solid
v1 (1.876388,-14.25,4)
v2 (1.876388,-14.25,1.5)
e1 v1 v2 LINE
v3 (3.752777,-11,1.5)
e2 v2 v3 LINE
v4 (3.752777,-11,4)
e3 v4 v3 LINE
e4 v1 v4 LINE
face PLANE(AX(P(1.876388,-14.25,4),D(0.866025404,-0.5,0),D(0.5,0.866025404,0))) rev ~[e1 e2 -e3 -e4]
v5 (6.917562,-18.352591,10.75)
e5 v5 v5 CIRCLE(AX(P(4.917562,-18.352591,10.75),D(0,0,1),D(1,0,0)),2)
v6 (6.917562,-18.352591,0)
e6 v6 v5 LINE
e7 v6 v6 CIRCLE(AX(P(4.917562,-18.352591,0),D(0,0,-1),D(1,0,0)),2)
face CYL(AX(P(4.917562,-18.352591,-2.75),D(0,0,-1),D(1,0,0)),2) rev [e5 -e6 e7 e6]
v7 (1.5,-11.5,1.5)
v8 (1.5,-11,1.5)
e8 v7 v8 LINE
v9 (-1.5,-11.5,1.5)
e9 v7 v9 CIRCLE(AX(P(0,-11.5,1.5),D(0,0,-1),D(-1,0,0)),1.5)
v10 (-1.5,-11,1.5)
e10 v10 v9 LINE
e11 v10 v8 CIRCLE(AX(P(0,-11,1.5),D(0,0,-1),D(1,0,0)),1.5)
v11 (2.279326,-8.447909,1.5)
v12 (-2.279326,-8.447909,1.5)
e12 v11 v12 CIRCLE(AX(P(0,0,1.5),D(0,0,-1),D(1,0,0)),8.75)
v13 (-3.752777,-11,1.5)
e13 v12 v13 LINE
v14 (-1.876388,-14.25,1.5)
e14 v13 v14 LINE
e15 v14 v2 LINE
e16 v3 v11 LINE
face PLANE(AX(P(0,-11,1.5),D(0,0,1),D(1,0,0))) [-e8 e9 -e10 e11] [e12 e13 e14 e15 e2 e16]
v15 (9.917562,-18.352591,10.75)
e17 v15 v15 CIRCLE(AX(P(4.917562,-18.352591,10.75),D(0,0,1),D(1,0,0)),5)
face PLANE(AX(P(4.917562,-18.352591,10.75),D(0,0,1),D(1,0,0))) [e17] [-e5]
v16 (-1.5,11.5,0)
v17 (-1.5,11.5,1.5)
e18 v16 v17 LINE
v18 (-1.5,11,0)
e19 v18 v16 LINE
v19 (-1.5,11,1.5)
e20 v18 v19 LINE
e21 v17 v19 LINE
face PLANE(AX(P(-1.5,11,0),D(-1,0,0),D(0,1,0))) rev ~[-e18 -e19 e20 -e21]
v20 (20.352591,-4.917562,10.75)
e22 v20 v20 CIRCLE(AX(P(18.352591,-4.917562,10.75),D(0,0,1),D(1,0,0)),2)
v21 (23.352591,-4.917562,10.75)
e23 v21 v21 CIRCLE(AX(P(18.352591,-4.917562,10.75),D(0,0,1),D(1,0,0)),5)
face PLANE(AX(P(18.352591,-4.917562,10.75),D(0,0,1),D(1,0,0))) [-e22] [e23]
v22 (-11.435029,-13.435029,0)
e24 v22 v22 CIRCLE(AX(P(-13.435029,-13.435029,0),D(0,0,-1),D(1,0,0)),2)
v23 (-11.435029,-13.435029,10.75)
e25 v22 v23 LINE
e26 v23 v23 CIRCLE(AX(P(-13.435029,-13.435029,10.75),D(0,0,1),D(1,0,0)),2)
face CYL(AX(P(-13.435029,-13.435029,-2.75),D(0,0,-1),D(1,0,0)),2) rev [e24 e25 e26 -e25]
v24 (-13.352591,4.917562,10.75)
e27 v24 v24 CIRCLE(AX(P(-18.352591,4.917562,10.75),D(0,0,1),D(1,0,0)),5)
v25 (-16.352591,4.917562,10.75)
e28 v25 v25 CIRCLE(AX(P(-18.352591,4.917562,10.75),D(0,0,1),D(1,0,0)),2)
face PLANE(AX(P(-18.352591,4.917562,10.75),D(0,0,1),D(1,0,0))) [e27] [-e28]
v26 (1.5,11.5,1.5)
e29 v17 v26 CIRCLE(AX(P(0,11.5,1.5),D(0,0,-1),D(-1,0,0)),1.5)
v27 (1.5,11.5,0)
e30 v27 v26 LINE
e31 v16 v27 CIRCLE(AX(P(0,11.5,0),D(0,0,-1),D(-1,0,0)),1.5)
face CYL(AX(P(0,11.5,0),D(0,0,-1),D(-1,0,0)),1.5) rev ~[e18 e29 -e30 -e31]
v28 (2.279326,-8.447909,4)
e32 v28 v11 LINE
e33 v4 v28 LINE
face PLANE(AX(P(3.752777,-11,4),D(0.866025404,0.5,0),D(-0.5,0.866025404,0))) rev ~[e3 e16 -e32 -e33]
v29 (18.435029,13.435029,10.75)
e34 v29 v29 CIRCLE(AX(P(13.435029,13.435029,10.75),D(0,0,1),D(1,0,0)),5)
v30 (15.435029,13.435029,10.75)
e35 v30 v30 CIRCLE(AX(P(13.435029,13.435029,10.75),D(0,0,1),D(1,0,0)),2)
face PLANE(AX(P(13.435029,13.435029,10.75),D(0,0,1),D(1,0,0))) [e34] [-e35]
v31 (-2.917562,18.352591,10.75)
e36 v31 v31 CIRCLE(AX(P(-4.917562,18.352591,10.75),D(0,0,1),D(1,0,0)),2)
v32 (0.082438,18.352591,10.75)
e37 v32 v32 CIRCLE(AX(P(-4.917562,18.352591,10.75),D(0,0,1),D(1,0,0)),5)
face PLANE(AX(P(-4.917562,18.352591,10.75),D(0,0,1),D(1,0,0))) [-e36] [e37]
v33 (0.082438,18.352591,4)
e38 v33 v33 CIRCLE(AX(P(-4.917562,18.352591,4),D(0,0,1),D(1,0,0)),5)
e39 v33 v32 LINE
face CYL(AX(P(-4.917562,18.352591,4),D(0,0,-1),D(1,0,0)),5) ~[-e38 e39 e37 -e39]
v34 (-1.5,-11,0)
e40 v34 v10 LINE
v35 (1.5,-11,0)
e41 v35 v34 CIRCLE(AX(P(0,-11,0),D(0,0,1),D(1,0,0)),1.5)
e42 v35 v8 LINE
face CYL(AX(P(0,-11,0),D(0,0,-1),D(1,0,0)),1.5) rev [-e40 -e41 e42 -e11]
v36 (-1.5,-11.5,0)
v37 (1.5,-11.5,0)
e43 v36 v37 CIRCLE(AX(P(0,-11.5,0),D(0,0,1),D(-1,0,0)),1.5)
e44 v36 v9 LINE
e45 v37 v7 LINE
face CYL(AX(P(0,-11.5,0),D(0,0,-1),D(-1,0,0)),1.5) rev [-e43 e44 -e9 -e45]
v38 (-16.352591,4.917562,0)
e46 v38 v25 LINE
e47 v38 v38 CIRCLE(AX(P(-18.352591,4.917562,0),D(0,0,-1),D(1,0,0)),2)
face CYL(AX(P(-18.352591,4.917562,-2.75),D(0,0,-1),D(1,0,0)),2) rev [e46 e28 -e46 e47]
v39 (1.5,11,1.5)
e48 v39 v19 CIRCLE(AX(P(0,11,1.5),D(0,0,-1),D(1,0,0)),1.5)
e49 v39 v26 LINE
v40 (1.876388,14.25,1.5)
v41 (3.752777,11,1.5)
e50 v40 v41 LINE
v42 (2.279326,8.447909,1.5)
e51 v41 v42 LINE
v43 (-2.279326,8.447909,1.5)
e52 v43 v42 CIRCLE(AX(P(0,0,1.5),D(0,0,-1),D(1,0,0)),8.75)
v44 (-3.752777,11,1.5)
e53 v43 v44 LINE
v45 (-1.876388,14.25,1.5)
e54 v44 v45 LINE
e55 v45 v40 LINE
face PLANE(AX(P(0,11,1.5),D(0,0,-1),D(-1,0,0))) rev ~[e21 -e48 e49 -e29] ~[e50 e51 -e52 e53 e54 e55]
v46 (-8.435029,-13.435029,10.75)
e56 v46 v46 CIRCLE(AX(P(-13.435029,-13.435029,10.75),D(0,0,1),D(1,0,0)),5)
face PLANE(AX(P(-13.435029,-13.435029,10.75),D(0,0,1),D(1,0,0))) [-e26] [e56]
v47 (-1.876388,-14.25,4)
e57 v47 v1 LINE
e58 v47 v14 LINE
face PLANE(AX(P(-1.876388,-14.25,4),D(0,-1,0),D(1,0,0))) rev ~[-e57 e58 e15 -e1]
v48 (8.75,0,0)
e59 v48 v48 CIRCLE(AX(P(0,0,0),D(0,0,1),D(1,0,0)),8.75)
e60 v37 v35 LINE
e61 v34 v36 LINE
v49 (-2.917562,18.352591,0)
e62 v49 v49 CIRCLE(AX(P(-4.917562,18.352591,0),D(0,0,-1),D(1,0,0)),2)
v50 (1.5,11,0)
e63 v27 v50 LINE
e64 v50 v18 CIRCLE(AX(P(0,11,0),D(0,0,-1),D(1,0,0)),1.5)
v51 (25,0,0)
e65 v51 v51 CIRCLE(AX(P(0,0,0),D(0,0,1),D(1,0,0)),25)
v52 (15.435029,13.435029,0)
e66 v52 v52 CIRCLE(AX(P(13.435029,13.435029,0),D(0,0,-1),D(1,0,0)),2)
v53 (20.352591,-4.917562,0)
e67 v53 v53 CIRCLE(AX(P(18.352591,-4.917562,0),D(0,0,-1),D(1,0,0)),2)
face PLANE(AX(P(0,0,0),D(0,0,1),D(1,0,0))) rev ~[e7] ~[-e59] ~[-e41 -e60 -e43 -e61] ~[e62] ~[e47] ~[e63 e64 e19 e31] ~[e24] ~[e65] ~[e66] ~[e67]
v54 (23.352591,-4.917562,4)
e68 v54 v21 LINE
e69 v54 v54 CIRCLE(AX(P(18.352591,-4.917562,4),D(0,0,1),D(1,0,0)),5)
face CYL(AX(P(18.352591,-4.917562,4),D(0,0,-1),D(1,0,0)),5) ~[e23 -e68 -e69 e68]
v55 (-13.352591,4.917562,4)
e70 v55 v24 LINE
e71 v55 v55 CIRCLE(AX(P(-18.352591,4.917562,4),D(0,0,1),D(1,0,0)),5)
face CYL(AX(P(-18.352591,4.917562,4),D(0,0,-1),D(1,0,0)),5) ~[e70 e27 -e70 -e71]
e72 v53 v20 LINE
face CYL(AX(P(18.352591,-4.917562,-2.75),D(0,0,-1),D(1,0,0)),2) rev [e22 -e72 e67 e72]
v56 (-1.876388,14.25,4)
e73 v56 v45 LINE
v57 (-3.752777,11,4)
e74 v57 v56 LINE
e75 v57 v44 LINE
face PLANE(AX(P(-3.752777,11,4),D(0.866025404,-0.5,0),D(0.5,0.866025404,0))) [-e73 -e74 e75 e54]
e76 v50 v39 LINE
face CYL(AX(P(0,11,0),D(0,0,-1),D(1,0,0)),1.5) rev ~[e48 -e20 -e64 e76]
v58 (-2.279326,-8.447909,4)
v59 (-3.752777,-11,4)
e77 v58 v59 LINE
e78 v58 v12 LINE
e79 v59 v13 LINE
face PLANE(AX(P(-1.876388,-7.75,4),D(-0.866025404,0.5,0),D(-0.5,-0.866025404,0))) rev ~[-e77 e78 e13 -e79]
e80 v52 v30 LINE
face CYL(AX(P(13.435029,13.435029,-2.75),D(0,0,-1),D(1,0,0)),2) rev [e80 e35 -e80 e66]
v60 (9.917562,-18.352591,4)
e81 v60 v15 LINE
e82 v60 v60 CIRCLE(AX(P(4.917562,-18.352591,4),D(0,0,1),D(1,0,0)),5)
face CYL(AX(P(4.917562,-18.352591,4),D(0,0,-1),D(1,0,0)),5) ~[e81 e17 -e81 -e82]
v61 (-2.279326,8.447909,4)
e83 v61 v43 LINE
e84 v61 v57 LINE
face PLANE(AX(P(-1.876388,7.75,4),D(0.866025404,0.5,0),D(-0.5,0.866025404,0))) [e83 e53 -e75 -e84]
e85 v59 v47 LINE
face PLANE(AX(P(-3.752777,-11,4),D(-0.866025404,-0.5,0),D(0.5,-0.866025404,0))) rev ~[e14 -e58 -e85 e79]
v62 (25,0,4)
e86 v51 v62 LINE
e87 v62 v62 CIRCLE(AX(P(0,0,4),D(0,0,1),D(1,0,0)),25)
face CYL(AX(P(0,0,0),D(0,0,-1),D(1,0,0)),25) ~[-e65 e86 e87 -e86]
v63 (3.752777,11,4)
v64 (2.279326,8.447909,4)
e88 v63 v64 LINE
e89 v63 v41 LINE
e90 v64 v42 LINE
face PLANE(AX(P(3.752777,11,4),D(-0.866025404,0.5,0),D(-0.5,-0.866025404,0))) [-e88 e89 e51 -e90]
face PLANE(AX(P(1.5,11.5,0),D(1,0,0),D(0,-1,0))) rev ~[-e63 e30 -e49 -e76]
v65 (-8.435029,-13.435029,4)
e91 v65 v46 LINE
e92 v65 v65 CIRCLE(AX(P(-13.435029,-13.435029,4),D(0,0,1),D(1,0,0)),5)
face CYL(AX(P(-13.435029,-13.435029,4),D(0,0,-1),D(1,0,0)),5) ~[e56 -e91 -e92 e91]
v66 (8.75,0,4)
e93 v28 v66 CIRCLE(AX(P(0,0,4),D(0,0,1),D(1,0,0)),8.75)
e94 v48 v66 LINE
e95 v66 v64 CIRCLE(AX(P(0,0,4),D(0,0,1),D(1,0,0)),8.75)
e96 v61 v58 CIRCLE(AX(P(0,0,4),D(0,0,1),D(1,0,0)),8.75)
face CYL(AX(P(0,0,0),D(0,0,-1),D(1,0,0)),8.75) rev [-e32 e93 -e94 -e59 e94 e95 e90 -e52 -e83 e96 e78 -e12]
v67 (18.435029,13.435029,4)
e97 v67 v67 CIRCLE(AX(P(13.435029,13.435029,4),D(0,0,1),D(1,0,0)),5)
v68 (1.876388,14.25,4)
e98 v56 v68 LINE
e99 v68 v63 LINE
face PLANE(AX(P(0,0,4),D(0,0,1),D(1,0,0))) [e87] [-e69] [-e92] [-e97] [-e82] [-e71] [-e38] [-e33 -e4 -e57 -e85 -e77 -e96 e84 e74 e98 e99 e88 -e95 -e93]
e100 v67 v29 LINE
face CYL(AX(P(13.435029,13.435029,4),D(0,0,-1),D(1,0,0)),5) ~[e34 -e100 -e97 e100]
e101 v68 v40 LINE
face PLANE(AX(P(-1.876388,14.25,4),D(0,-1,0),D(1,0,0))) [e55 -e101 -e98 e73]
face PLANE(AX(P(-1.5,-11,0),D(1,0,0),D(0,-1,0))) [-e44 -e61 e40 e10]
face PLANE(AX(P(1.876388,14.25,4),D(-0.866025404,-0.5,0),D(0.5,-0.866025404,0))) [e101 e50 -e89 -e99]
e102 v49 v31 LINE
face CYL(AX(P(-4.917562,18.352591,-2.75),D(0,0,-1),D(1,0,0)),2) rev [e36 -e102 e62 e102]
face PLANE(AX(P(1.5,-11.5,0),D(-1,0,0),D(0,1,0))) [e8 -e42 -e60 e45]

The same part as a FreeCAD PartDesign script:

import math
import FreeCAD as App
import Part
import Sketcher

V = App.Vector
Q = App.Units.Quantity

doc = App.newDocument("Part")
body = doc.addObject("PartDesign::Body", "Body")

# Sketch on XY plane
sketch1 = doc.addObject("Sketcher::SketchObject", "Sketch")
body.addObject(sketch1)
sketch1.AttachmentSupport = (doc.XY_Plane, [""])
sketch1.MapMode = "FlatFace"
sketch1.addGeometry([
    Part.Circle(V(0, 0, 0), V(0, 0, 1), 25),  # 0
    Part.LineSegment(V(-1.5, -11.5, 0), V(-1.5, -11, 0)),  # 1
    Part.ArcOfCircle(Part.Circle(V(0, -11, 0), V(0, 0, 1), 1.5), math.radians(0), math.radians(180)),  # 2
    Part.LineSegment(V(1.5, -11, 0), V(1.5, -11.5, 0)),  # 3
    Part.ArcOfCircle(Part.Circle(V(0, -11.5, 0), V(0, 0, 1), 1.5), math.radians(180), math.radians(360)),  # 4
    Part.Circle(V(0, 0, 0), V(0, 0, 1), 8.8),  # 5
    Part.ArcOfCircle(Part.Circle(V(0, 11, 0), V(0, 0, 1), 1.5), math.radians(180), math.radians(360)),  # 6
    Part.LineSegment(V(-1.5, 11, 0), V(-1.5, 11.5, 0)),  # 7
    Part.ArcOfCircle(Part.Circle(V(0, 11.5, 0), V(0, 0, 1), 1.5), math.radians(0), math.radians(180)),  # 8
    Part.LineSegment(V(1.5, 11.5, 0), V(1.5, 11, 0)),  # 9
], False)
sketch1.addConstraint([
    Sketcher.Constraint("Tangent", 1, 2, 2, 2),
    Sketcher.Constraint("Tangent", 2, 1, 3, 1),
    Sketcher.Constraint("Tangent", 3, 2, 4, 2),
    Sketcher.Constraint("Tangent", 4, 1, 1, 1),
    Sketcher.Constraint("Tangent", 6, 1, 7, 1),
    Sketcher.Constraint("Tangent", 7, 2, 8, 2),
    Sketcher.Constraint("Tangent", 8, 1, 9, 1),
    Sketcher.Constraint("Tangent", 9, 2, 6, 2),
    Sketcher.Constraint("Vertical", 1),
    Sketcher.Constraint("Vertical", 3),
    Sketcher.Constraint("Vertical", 7),
    Sketcher.Constraint("Vertical", 9),
    Sketcher.Constraint("Coincident", 0, 3, -1, 1),
    Sketcher.Constraint("Coincident", 5, 3, -1, 1),
    Sketcher.Constraint("Equal", 4, 6),
    Sketcher.Constraint("Symmetric", 2, 3, 6, 3, -1, 1),
    Sketcher.Constraint("Symmetric", 4, 3, 8, 3, -1),
    Sketcher.Constraint("Diameter", 0, Q("50 mm")),
    Sketcher.Constraint("Diameter", 5, Q("17.5 mm")),
    Sketcher.Constraint("Radius", 2, Q("1.5 mm")),
    Sketcher.Constraint("DistanceY", 1, 1, 1, 2, Q("0.5 mm")),
    Sketcher.Constraint("DistanceY", 2, 3, -1, 1, Q("11 mm")),
])
pad1 = doc.addObject("PartDesign::Pad", "Pad")
body.addObject(pad1)
pad1.Profile = sketch1
pad1.Length = 4

# Sketch on XY plane
sketch2 = doc.addObject("Sketcher::SketchObject", "Sketch001")
body.addObject(sketch2)
sketch2.AttachmentSupport = (doc.XY_Plane, [""])
sketch2.MapMode = "FlatFace"
sketch2.AttachmentOffset = App.Placement(V(0, 0, 4), App.Rotation())
sketch2.addGeometry([
    Part.Circle(V(-4.9, 18.4, 0), V(0, 0, 1), 5),  # 0
    Part.Circle(V(-4.9, 18.4, 0), V(0, 0, 1), 2),  # 1
    Part.Circle(V(-18.4, 4.9, 0), V(0, 0, 1), 5),  # 2
    Part.Circle(V(-18.4, 4.9, 0), V(0, 0, 1), 2),  # 3
    Part.Circle(V(-13.4, -13.4, 0), V(0, 0, 1), 5),  # 4
    Part.Circle(V(-13.4, -13.4, 0), V(0, 0, 1), 2),  # 5
    Part.Circle(V(4.9, -18.4, 0), V(0, 0, 1), 5),  # 6
    Part.Circle(V(4.9, -18.4, 0), V(0, 0, 1), 2),  # 7
    Part.Circle(V(18.4, -4.9, 0), V(0, 0, 1), 5),  # 8
    Part.Circle(V(18.4, -4.9, 0), V(0, 0, 1), 2),  # 9
    Part.Circle(V(13.4, 13.4, 0), V(0, 0, 1), 5),  # 10
    Part.Circle(V(13.4, 13.4, 0), V(0, 0, 1), 2),  # 11
], False)
sketch2.addConstraint([
    Sketcher.Constraint("Coincident", 1, 3, 0, 3),
    Sketcher.Constraint("Coincident", 3, 3, 2, 3),
    Sketcher.Constraint("Coincident", 5, 3, 4, 3),
    Sketcher.Constraint("Coincident", 7, 3, 6, 3),
    Sketcher.Constraint("Coincident", 9, 3, 8, 3),
    Sketcher.Constraint("Coincident", 11, 3, 10, 3),
    Sketcher.Constraint("Equal", 0, 2),
    Sketcher.Constraint("Equal", 1, 3),
    Sketcher.Constraint("Equal", 2, 4),
    Sketcher.Constraint("Equal", 3, 5),
    Sketcher.Constraint("Equal", 4, 6),
    Sketcher.Constraint("Equal", 5, 7),
    Sketcher.Constraint("Equal", 6, 8),
    Sketcher.Constraint("Equal", 7, 9),
    Sketcher.Constraint("Equal", 8, 10),
    Sketcher.Constraint("Equal", 9, 11),
    Sketcher.Constraint("Symmetric", 0, 3, 6, 3, -1, 1),
    Sketcher.Constraint("Symmetric", 2, 3, 8, 3, -1, 1),
    Sketcher.Constraint("Symmetric", 4, 3, 10, 3, -1, 1),
    Sketcher.Constraint("Diameter", 0, Q("10 mm")),
    Sketcher.Constraint("Diameter", 1, Q("4 mm")),
    Sketcher.Constraint("DistanceX", 0, 3, -1, 1, Q("4.917562 mm")),
    Sketcher.Constraint("DistanceY", -1, 1, 0, 3, Q("18.352591 mm")),
    Sketcher.Constraint("DistanceX", 2, 3, -1, 1, Q("18.352591 mm")),
    Sketcher.Constraint("DistanceY", -1, 1, 2, 3, Q("4.917562 mm")),
    Sketcher.Constraint("DistanceX", 4, 3, -1, 1, Q("13.435029 mm")),
    Sketcher.Constraint("DistanceY", 4, 3, -1, 1, Q("13.435029 mm")),
])
pad2 = doc.addObject("PartDesign::Pad", "Pad001")
body.addObject(pad2)
pad2.Profile = sketch2
pad2.Length = 6.75

# Sketch on XY plane
sketch3 = doc.addObject("Sketcher::SketchObject", "Sketch002")
body.addObject(sketch3)
sketch3.AttachmentSupport = (doc.XY_Plane, [""])
sketch3.MapMode = "FlatFace"
sketch3.AttachmentOffset = App.Placement(V(0, 0, -2.75), App.Rotation())
sketch3.addGeometry([
    Part.Circle(V(-18.4, 4.9, 0), V(0, 0, 1), 2),  # 0
    Part.Circle(V(-13.4, -13.4, 0), V(0, 0, 1), 2),  # 1
    Part.Circle(V(4.9, -18.4, 0), V(0, 0, 1), 2),  # 2
    Part.Circle(V(18.4, -4.9, 0), V(0, 0, 1), 2),  # 3
    Part.Circle(V(13.4, 13.4, 0), V(0, 0, 1), 2),  # 4
    Part.Circle(V(-4.9, 18.4, 0), V(0, 0, 1), 2),  # 5
], False)
sketch3.addConstraint([
    Sketcher.Constraint("Equal", 0, 1),
    Sketcher.Constraint("Equal", 1, 2),
    Sketcher.Constraint("Equal", 2, 3),
    Sketcher.Constraint("Equal", 3, 4),
    Sketcher.Constraint("Equal", 4, 5),
    Sketcher.Constraint("Symmetric", 0, 3, 3, 3, -1, 1),
    Sketcher.Constraint("Symmetric", 1, 3, 4, 3, -1, 1),
    Sketcher.Constraint("Symmetric", 2, 3, 5, 3, -1, 1),
    Sketcher.Constraint("Diameter", 0, Q("4 mm")),
    Sketcher.Constraint("DistanceX", 0, 3, -1, 1, Q("18.352591 mm")),
    Sketcher.Constraint("DistanceY", -1, 1, 0, 3, Q("4.917562 mm")),
    Sketcher.Constraint("DistanceX", 1, 3, -1, 1, Q("13.435029 mm")),
    Sketcher.Constraint("DistanceY", 1, 3, -1, 1, Q("13.435029 mm")),
    Sketcher.Constraint("DistanceX", -1, 1, 2, 3, Q("4.917562 mm")),
    Sketcher.Constraint("DistanceY", 2, 3, -1, 1, Q("18.352591 mm")),
])
pocket1 = doc.addObject("PartDesign::Pocket", "Pocket")
body.addObject(pocket1)
pocket1.Profile = sketch3
pocket1.Length = 6.75
pocket1.Reversed = True

# Sketch on XY plane
sketch4 = doc.addObject("Sketcher::SketchObject", "Sketch003")
body.addObject(sketch4)
sketch4.AttachmentSupport = (doc.XY_Plane, [""])
sketch4.MapMode = "FlatFace"
sketch4.AttachmentOffset = App.Placement(V(0, 0, 4), App.Rotation())
sketch4.addGeometry([
    Part.LineSegment(V(1.9, -7.8, 0), V(-1.9, -7.8, 0)),  # 0
    Part.LineSegment(V(-1.9, -7.8, 0), V(-3.8, -11, 0)),  # 1
    Part.LineSegment(V(-3.8, -11, 0), V(-1.9, -14.2, 0)),  # 2
    Part.LineSegment(V(-1.9, -14.2, 0), V(1.9, -14.2, 0)),  # 3
    Part.LineSegment(V(1.9, -14.2, 0), V(3.8, -11, 0)),  # 4
    Part.LineSegment(V(3.8, -11, 0), V(1.9, -7.8, 0)),  # 5
    Part.LineSegment(V(3.8, 11, 0), V(1.9, 14.2, 0)),  # 6
    Part.LineSegment(V(1.9, 14.2, 0), V(-1.9, 14.2, 0)),  # 7
    Part.LineSegment(V(-1.9, 14.2, 0), V(-3.8, 11, 0)),  # 8
    Part.LineSegment(V(-3.8, 11, 0), V(-1.9, 7.8, 0)),  # 9
    Part.LineSegment(V(-1.9, 7.8, 0), V(1.9, 7.8, 0)),  # 10
    Part.LineSegment(V(1.9, 7.8, 0), V(3.8, 11, 0)),  # 11
], False)
sketch4.addConstraint([
    Sketcher.Constraint("Coincident", 0, 2, 1, 1),
    Sketcher.Constraint("Coincident", 1, 2, 2, 1),
    Sketcher.Constraint("Coincident", 2, 2, 3, 1),
    Sketcher.Constraint("Coincident", 3, 2, 4, 1),
    Sketcher.Constraint("Coincident", 4, 2, 5, 1),
    Sketcher.Constraint("Coincident", 5, 2, 0, 1),
    Sketcher.Constraint("Coincident", 6, 2, 7, 1),
    Sketcher.Constraint("Coincident", 7, 2, 8, 1),
    Sketcher.Constraint("Coincident", 8, 2, 9, 1),
    Sketcher.Constraint("Coincident", 9, 2, 10, 1),
    Sketcher.Constraint("Coincident", 10, 2, 11, 1),
    Sketcher.Constraint("Coincident", 11, 2, 6, 1),
    Sketcher.Constraint("Horizontal", 0),
    Sketcher.Constraint("Horizontal", 3),
    Sketcher.Constraint("Horizontal", 7),
    Sketcher.Constraint("Horizontal", 10),
    Sketcher.Constraint("Symmetric", 2, 2, 6, 2, -1, 1),
    Sketcher.Constraint("Symmetric", 4, 2, 8, 2, -1, 1),
    Sketcher.Constraint("Symmetric", 5, 2, 9, 2, -1, 1),
    Sketcher.Constraint("Symmetric", 1, 2, 11, 2, -1, 1),
    Sketcher.Constraint("Symmetric", 1, 2, 4, 2, -2),
    Sketcher.Constraint("Parallel", 1, 4),
    Sketcher.Constraint("Parallel", 2, 5),
    Sketcher.Constraint("Parallel", 4, 8),
    Sketcher.Constraint("Parallel", 8, 11),
    Sketcher.Constraint("Vertical", 0, 2, 2, 2),
    Sketcher.Constraint("Vertical", 3, 2, 5, 2),
    Sketcher.Constraint("Angle", 1, Q("-120 deg")),
    Sketcher.Constraint("DistanceY", 1, 2, -1, 1, Q("11 mm")),
    Sketcher.Constraint("DistanceY", 2, 2, 0, 2, Q("6.5 mm")),
    Sketcher.Constraint("DistanceX", 0, 2, 0, 1, Q("3.752777 mm")),
])
pocket2 = doc.addObject("PartDesign::Pocket", "Pocket001")
body.addObject(pocket2)
pocket2.Profile = sketch4
pocket2.Length = 2.5

doc.recompute()
